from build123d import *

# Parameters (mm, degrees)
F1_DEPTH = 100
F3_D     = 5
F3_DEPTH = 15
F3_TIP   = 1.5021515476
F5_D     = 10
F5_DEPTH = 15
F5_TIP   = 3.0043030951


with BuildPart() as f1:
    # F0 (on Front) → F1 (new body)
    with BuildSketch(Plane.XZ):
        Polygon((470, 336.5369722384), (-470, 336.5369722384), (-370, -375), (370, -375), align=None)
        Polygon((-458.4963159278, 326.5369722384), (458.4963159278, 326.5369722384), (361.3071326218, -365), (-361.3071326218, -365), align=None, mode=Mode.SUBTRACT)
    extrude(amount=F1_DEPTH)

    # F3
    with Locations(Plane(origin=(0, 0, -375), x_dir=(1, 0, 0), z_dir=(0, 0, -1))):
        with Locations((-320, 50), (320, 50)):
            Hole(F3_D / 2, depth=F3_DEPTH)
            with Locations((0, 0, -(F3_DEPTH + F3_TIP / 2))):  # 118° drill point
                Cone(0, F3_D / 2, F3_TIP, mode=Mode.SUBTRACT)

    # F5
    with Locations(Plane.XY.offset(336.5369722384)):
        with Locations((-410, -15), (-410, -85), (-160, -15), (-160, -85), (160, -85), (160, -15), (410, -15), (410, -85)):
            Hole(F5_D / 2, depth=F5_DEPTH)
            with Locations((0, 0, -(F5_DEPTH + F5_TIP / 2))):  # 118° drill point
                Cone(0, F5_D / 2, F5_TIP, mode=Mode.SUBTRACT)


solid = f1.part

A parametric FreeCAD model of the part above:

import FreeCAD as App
import Part
import Sketcher
from FreeCAD import Vector
Q = App.Units.Quantity


def add_polygon(sketch, points):
    """Adds a closed chain of lines whose ends are joined by coincident constraints."""
    first, n = sketch.GeometryCount, len(points)
    for a, b in zip(points, points[1:] + points[:1]):
        sketch.addGeometry(Part.LineSegment(App.Vector(*a, 0), App.Vector(*b, 0)), False)
    for i in range(n):
        sketch.addConstraint(Sketcher.Constraint("Coincident", first + i, 2, first + (i + 1) % n, 1))

doc = App.newDocument("Part")
body = doc.addObject("PartDesign::Body", "Body")

sketch1 = doc.addObject("Sketcher::SketchObject", "Sketch")
body.addObject(sketch1)
sketch1.AttachmentSupport = (doc.XZ_Plane, [""])
sketch1.MapMode = "FlatFace"
add_polygon(sketch1, [(470, 337), (-470, 337), (-370, -375), (370, -375)])
add_polygon(sketch1, [(-361, -365), (-458, 327), (458, 327), (361, -365)])
sketch1.addConstraint(Sketcher.Constraint("Horizontal", 0))
sketch1.addConstraint(Sketcher.Constraint("Horizontal", 2))
sketch1.addConstraint(Sketcher.Constraint("Horizontal", 5))
sketch1.addConstraint(Sketcher.Constraint("Horizontal", 7))
sketch1.addConstraint(Sketcher.Constraint("Parallel", 1, 4))
sketch1.addConstraint(Sketcher.Constraint("Parallel", 3, 6))
sketch1.addConstraint(Sketcher.Constraint("Equal", 1, 3))
sketch1.addConstraint(Sketcher.Constraint("DistanceX", 0, 2, 0, 1, 940.0))
sketch1.addConstraint(Sketcher.Constraint("DistanceX", 2, 1, 2, 2, 740.0))
sketch1.addConstraint(Sketcher.Constraint("Angle", 1, Q("-82 deg")))
sketch1.addConstraint(Sketcher.Constraint("DistanceX", 0, 2, -1, 1, 470.0))
sketch1.addConstraint(Sketcher.Constraint("DistanceY", 1, 2, -1, 1, 375.0))
sketch1.addConstraint(Sketcher.Constraint("DistanceY", 6, 2, -1, 1, 365.0))
sketch1.addConstraint(Sketcher.Constraint("DistanceY", 4, 2, 0, 2, 10.0))
sketch1.addConstraint(Sketcher.Constraint("DistanceX", 5, 1, 5, 2, 916.992632))
sketch1.addConstraint(Sketcher.Constraint("DistanceX", 4, 2, -1, 1, 458.496316))
pad1 = doc.addObject("PartDesign::Pad", "Pad")
body.addObject(pad1)
pad1.Profile = sketch1
pad1.Length = 100

sketch2 = doc.addObject("Sketcher::SketchObject", "Sketch001")
body.addObject(sketch2)
sketch2.AttachmentSupport = (doc.XY_Plane, [""])
sketch2.MapMode = "FlatFace"
sketch2.AttachmentOffset = App.Placement(Vector(0, 0, -375), App.Rotation())
sketch2.addGeometry(Part.Circle(Vector(-320, -50, 0), Vector(0, 0, 1), 2.5), False)
sketch2.addGeometry(Part.Circle(Vector(320, -50, 0), Vector(0, 0, 1), 2.5), False)
sketch2.addConstraint(Sketcher.Constraint("Equal", 0, 1))
sketch2.addConstraint(Sketcher.Constraint("Symmetric", 0, 3, 1, 3, -2))
sketch2.addConstraint(Sketcher.Constraint("Diameter", 0, 5.0))
sketch2.addConstraint(Sketcher.Constraint("DistanceX", 0, 3, -1, 1, 320.0))
sketch2.addConstraint(Sketcher.Constraint("DistanceY", 0, 3, -1, 1, 50.0))
doc.recompute()
hole = doc.addObject("PartDesign::Hole", "Hole")
body.addObject(hole)
hole.Profile = sketch2
hole.ThreadType = "None"
hole.Diameter = 5
hole.DepthType = "Dimension"
hole.Depth = 15
hole.DrillPoint = "Angled"
hole.DrillPointAngle = 118
hole.Reversed = True

sketch3 = doc.addObject("Sketcher::SketchObject", "Sketch002")
body.addObject(sketch3)
sketch3.AttachmentSupport = (doc.XY_Plane, [""])
sketch3.MapMode = "FlatFace"
sketch3.AttachmentOffset = App.Placement(Vector(0, 0, 336.536972), App.Rotation())
sketch3.addGeometry(Part.Circle(Vector(-410, -15, 0), Vector(0, 0, 1), 5), False)
sketch3.addGeometry(Part.Circle(Vector(-410, -85, 0), Vector(0, 0, 1), 5), False)
sketch3.addGeometry(Part.Circle(Vector(-160, -15, 0), Vector(0, 0, 1), 5), False)
sketch3.addGeometry(Part.Circle(Vector(-160, -85, 0), Vector(0, 0, 1), 5), False)
sketch3.addGeometry(Part.Circle(Vector(160, -85, 0), Vector(0, 0, 1), 5), False)
sketch3.addGeometry(Part.Circle(Vector(160, -15, 0), Vector(0, 0, 1), 5), False)
sketch3.addGeometry(Part.Circle(Vector(410, -15, 0), Vector(0, 0, 1), 5), False)
sketch3.addGeometry(Part.Circle(Vector(410, -85, 0), Vector(0, 0, 1), 5), False)
sketch3.addConstraint(Sketcher.Constraint("Equal", 0, 1))
sketch3.addConstraint(Sketcher.Constraint("Equal", 1, 2))
sketch3.addConstraint(Sketcher.Constraint("Equal", 2, 3))
sketch3.addConstraint(Sketcher.Constraint("Equal", 3, 4))
sketch3.addConstraint(Sketcher.Constraint("Equal", 4, 5))
sketch3.addConstraint(Sketcher.Constraint("Equal", 5, 6))
sketch3.addConstraint(Sketcher.Constraint("Equal", 6, 7))
sketch3.addConstraint(Sketcher.Constraint("Symmetric", 3, 3, 4, 3, -2))
sketch3.addConstraint(Sketcher.Constraint("Symmetric", 2, 3, 5, 3, -2))
sketch3.addConstraint(Sketcher.Constraint("Symmetric", 0, 3, 6, 3, -2))
sketch3.addConstraint(Sketcher.Constraint("Symmetric", 1, 3, 7, 3, -2))
sketch3.addConstraint(Sketcher.Constraint("Horizontal", 0, 3, 2, 3))
sketch3.addConstraint(Sketcher.Constraint("Horizontal", 1, 3, 3, 3))
sketch3.addConstraint(Sketcher.Constraint("Vertical", 0, 3, 1, 3))
sketch3.addConstraint(Sketcher.Constraint("Vertical", 2, 3, 3, 3))
sketch3.addConstraint(Sketcher.Constraint("Diameter", 0, 10.0))
sketch3.addConstraint(Sketcher.Constraint("DistanceX", 0, 3, -1, 1, 410.0))
sketch3.addConstraint(Sketcher.Constraint("DistanceY", 0, 3, -1, 1, 15.0))
sketch3.addConstraint(Sketcher.Constraint("DistanceY", 1, 3, -1, 1, 85.0))
sketch3.addConstraint(Sketcher.Constraint("DistanceX", 2, 3, -1, 1, 160.0))
doc.recompute()
hole2 = doc.addObject("PartDesign::Hole", "Hole001")
body.addObject(hole2)
hole2.Profile = sketch3
hole2.ThreadType = "None"
hole2.Diameter = 10
hole2.DepthType = "Dimension"
hole2.Depth = 15
hole2.DrillPoint = "Angled"
hole2.DrillPointAngle = 118

doc.recompute()
